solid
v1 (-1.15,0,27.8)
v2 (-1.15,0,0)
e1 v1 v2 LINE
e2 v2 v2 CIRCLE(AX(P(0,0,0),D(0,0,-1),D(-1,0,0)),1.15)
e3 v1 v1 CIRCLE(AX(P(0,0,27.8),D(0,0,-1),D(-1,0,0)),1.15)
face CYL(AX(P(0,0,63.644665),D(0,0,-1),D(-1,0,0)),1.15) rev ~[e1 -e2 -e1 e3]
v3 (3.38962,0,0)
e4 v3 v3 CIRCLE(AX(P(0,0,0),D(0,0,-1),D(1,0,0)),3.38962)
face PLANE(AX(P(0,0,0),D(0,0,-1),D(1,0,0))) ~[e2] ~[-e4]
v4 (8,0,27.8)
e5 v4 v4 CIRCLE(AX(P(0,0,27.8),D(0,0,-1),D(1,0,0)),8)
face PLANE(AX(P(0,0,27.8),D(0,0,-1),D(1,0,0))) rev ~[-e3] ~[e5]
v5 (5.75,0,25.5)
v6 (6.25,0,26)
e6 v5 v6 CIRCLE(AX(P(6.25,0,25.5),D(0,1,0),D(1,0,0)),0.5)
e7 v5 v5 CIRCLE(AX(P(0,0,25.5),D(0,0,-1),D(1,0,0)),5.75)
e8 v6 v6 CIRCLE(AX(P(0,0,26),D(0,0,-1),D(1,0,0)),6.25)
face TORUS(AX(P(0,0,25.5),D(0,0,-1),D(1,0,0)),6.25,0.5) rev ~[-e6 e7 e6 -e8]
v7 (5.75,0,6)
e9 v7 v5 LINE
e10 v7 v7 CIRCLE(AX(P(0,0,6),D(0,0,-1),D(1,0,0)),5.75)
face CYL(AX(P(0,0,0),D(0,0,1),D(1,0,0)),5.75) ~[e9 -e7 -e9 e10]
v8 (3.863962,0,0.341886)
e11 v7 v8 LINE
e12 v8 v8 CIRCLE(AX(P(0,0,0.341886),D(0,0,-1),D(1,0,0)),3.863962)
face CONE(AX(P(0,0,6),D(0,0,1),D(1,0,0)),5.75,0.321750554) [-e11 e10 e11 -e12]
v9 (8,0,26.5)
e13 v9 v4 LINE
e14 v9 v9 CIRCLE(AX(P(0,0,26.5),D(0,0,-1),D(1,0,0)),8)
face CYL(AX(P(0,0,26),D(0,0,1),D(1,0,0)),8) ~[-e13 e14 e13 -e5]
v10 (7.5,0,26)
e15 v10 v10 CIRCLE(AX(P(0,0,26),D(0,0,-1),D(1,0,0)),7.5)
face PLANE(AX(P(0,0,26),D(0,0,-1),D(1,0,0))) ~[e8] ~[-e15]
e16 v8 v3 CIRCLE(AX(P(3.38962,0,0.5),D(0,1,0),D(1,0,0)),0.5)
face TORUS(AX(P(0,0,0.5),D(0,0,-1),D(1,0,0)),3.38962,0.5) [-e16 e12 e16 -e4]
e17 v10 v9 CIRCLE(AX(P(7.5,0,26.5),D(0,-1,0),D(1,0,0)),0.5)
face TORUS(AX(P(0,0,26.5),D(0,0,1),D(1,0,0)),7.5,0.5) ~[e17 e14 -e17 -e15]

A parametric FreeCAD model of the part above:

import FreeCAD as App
import Part
import Sketcher
Q = App.Units.Quantity


def edges_at(feature, points):
    """Names of the edges that pass closest to the given points."""
    edges = feature.Shape.Edges
    near = lambda p: min(range(len(edges)), key=lambda i: edges[i].distToShape(Part.Vertex(*p))[0])
    return sorted({f"Edge{near(p) + 1}" for p in points})

doc = App.newDocument("Part")
body = doc.addObject("PartDesign::Body", "Body")

sketch1 = body.newObject("Sketcher::SketchObject", "Sketch")
sketch1.AttachmentSupport = (doc.getObject("XZ_Plane"), [""])
sketch1.MapMode = "FlatFace"
sketch1.addGeometry([
    Part.LineSegment(App.Vector(8, 27.8, 0), App.Vector(0, 27.8, 0)),
    Part.LineSegment(App.Vector(0, 27.8, 0), App.Vector(0, 0, 0)),
    Part.LineSegment(App.Vector(0, 0, 0), App.Vector(5.8, 0, 0)),
    Part.LineSegment(App.Vector(5.8, 0, 0), App.Vector(5.8, 26, 0)),
    Part.LineSegment(App.Vector(5.8, 26, 0), App.Vector(8, 26, 0)),
    Part.LineSegment(App.Vector(8, 26, 0), App.Vector(8, 27.8, 0)),
], False)
sketch1.addConstraint([
    Sketcher.Constraint("Coincident", 0, 2, 1, 1),
    Sketcher.Constraint("Coincident", 1, 2, 2, 1),
    Sketcher.Constraint("Coincident", 2, 2, 3, 1),
    Sketcher.Constraint("Coincident", 3, 2, 4, 1),
    Sketcher.Constraint("Coincident", 4, 2, 5, 1),
    Sketcher.Constraint("Coincident", 5, 2, 0, 1),
    Sketcher.Constraint("Horizontal", 0),
    Sketcher.Constraint("Vertical", 1),
    Sketcher.Constraint("Horizontal", 2),
    Sketcher.Constraint("Vertical", 3),
    Sketcher.Constraint("Horizontal", 4),
    Sketcher.Constraint("Vertical", 5),
    Sketcher.Constraint("Coincident", 1, 2, -1, 1),
    Sketcher.Constraint("DistanceX", 0, 2, 0, 1, Q("8 mm")),
    Sketcher.Constraint("DistanceY", 3, 1, 3, 2, Q("26 mm")),
    Sketcher.Constraint("DistanceY", 1, 2, 1, 1, Q("27.8 mm")),
    Sketcher.Constraint("DistanceX", 2, 1, 2, 2, Q("5.75 mm")),
])
revolution = body.newObject("PartDesign::Revolution", "Revolution")
revolution.Profile = sketch1
revolution.ReferenceAxis = (sketch1, ["V_Axis"])
revolution.Angle = 360
doc.recompute()

fillet = body.newObject("PartDesign::Fillet", "Fillet")
fillet.Base = (revolution, edges_at(revolution, [(-5.75, 0, 26)]))
fillet.Radius = 0.5
doc.recompute()

chamfer = body.newObject("PartDesign::Chamfer", "Chamfer")
chamfer.Base = (fillet, edges_at(fillet, [(-5.75, 0, 0)]))
chamfer.ChamferType = "Two distances"
chamfer.Size = 6
chamfer.Size2 = 2
doc.recompute()

fillet2 = body.newObject("PartDesign::Fillet", "Fillet001")
fillet2.Base = (chamfer, edges_at(chamfer, [(-3.75, 0, 0)]))
fillet2.Radius = 0.5

sketch2 = body.newObject("Sketcher::SketchObject", "Sketch001")
sketch2.AttachmentSupport = (doc.getObject("XY_Plane"), [""])
sketch2.MapMode = "FlatFace"
sketch2.AttachmentOffset = App.Placement(App.Vector(0, 0, 27.8), App.Rotation())
sketch2.addGeometry(Part.Circle(App.Vector(0, 0, 0), App.Vector(0, 0, 1), 1.1), False)
sketch2.addConstraint([
    Sketcher.Constraint("Coincident", 0, 3, -1, 1),
    Sketcher.Constraint("Diameter", 0, Q("2.3 mm")),
])
doc.recompute()
hole = body.newObject("PartDesign::Hole", "Hole")
hole.Profile = sketch2
hole.ThreadType = "None"
hole.Diameter = 2.3
hole.DepthType = "ThroughAll"
doc.recompute()

fillet3 = body.newObject("PartDesign::Fillet", "Fillet002")
fillet3.Base = (hole, edges_at(hole, [(-8, 0, 26)]))
fillet3.Radius = 0.5

doc.recompute()
